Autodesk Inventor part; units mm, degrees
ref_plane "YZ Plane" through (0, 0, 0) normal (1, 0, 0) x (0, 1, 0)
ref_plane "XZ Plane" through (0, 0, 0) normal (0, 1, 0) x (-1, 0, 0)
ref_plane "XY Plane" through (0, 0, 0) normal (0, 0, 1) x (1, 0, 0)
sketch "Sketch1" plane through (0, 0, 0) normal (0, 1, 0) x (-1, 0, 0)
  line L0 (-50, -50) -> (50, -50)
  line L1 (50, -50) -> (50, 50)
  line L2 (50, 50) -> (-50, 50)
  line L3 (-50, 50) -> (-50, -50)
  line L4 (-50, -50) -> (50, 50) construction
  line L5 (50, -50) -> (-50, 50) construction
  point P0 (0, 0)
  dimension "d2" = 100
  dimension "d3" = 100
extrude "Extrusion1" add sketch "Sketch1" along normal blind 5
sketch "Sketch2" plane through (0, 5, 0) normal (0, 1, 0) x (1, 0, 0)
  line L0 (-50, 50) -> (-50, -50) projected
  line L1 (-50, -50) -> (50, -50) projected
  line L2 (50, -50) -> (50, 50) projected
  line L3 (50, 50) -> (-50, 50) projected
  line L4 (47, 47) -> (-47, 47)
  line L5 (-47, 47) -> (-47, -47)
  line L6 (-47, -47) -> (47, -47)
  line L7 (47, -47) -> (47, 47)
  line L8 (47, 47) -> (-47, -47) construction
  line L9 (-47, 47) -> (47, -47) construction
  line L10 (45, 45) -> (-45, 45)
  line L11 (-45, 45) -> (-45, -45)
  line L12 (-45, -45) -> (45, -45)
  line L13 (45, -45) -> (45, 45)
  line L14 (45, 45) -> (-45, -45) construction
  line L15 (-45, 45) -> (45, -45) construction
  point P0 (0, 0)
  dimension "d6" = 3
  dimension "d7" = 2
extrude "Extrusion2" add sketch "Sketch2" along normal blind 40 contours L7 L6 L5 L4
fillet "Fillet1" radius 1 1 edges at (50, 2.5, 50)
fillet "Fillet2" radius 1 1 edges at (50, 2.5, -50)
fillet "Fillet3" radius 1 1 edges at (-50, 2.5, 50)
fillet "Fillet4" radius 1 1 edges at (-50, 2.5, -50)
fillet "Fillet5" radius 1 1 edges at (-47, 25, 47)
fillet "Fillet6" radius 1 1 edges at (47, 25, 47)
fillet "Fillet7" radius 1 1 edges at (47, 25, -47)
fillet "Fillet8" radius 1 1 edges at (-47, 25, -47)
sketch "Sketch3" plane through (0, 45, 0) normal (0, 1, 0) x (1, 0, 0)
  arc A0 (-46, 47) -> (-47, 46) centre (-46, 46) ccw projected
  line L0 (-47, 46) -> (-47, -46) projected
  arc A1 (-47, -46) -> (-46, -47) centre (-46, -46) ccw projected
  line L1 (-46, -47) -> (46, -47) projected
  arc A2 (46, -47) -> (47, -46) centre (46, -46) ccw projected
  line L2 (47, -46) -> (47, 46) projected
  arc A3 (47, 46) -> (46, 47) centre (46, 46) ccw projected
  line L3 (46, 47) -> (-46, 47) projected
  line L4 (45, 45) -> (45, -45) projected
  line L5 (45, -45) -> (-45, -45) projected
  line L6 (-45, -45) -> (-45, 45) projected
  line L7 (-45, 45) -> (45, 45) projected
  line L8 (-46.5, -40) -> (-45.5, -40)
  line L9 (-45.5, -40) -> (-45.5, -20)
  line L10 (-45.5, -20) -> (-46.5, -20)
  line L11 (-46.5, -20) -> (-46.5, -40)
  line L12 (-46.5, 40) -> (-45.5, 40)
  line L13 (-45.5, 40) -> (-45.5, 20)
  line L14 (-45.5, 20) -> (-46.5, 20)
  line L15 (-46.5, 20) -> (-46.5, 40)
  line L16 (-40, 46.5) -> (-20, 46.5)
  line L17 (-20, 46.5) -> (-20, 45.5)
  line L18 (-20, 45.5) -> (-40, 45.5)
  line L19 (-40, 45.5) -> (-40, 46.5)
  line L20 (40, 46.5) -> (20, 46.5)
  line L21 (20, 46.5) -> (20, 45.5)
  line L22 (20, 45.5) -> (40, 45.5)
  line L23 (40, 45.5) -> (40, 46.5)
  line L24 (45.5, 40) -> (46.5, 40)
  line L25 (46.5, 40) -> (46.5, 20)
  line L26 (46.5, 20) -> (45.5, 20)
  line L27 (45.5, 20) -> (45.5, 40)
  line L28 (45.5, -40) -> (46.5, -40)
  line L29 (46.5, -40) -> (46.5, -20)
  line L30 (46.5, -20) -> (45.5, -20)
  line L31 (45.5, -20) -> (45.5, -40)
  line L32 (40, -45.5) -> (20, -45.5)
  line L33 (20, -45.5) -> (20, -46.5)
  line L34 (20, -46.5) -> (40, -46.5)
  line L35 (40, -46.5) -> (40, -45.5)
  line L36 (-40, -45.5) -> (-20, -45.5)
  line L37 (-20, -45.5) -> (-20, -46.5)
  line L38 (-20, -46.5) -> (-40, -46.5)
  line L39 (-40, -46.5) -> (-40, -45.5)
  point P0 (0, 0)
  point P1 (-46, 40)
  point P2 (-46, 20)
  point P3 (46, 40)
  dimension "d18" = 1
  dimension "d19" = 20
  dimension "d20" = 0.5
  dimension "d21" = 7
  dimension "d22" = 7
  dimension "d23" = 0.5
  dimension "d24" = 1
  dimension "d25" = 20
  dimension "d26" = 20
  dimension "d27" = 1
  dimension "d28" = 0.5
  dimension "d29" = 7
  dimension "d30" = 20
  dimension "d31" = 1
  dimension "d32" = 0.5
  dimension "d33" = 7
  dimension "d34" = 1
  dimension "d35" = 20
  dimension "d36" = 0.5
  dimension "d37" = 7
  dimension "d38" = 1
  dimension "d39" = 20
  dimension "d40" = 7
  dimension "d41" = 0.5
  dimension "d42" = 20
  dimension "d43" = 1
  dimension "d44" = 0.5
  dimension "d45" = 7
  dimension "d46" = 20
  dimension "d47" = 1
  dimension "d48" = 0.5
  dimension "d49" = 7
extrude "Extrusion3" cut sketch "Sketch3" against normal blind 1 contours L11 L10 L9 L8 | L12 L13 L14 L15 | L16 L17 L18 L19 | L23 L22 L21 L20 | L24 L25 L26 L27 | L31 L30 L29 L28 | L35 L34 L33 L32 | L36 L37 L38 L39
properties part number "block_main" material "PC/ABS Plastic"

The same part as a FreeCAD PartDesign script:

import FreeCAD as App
import Part
import Sketcher

V = App.Vector


def edges_at(feature, points):
    """Names of the edges that pass closest to the given points."""
    edges = feature.Shape.Edges
    near = lambda p: min(range(len(edges)), key=lambda i: edges[i].distToShape(Part.Vertex(*p))[0])
    return sorted({f"Edge{near(p) + 1}" for p in points})

doc = App.newDocument("Part")
params = doc.addObject("Spreadsheet::Sheet", "Params")
for row, (alias, value) in enumerate([
    ("sketch1_width", "100 mm"),
    ("pad1_length", "5 mm"),
    ("sketch2_width", "94 mm"),
    ("pad2_length", "40 mm"),
    ("fillet_radius", "1 mm"),
    ("fillet2_radius", "1 mm"),
    ("fillet3_radius", "1 mm"),
    ("fillet4_radius", "1 mm"),
    ("fillet5_radius", "1 mm"),
    ("fillet6_radius", "1 mm"),
    ("fillet7_radius", "1 mm"),
    ("fillet8_radius", "1 mm"),
    ("sketch3_width", "1 mm"),
    ("sketch3_width2", "20 mm"),
    ("pocket1_length", "1 mm"),
], start=1):
    params.set(f"A{row}", alias)
    params.set(f"B{row}", "=" + value)
    params.setAlias(f"B{row}", alias)

body = doc.addObject("PartDesign::Body", "Body")

# Sketch on XZ plane
sketch1 = body.newObject("Sketcher::SketchObject", "Sketch")
sketch1.AttachmentSupport = (doc.getObject("XZ_Plane"), [""])
sketch1.MapMode = "FlatFace"
sketch1.addGeometry([
    Part.LineSegment(V(50, 50, 0), V(50, -50, 0)),
    Part.LineSegment(V(50, -50, 0), V(-50, -50, 0)),
    Part.LineSegment(V(-50, -50, 0), V(-50, 50, 0)),
    Part.LineSegment(V(-50, 50, 0), V(50, 50, 0)),
], False)
sketch1.addConstraint([
    Sketcher.Constraint("Coincident", 0, 2, 1, 1),
    Sketcher.Constraint("Coincident", 1, 2, 2, 1),
    Sketcher.Constraint("Coincident", 2, 2, 3, 1),
    Sketcher.Constraint("Coincident", 3, 2, 0, 1),
    Sketcher.Constraint("Vertical", 0),
    Sketcher.Constraint("Horizontal", 1),
    Sketcher.Constraint("Vertical", 2),
    Sketcher.Constraint("Horizontal", 3),
    Sketcher.Constraint("Symmetric", 0, 2, 2, 2, -1, 1),
    Sketcher.Constraint("Equal", 3, 0),
    Sketcher.Constraint("DistanceX", 1, 2, 1, 1, 100.0),
])
sketch1.setExpression("Constraints[10]", "Params.sketch1_width")
pad1 = body.newObject("PartDesign::Pad", "Pad")
pad1.Profile = sketch1
pad1.setExpression("Length", "Params.pad1_length")
pad1.Reversed = True

# Sketch on XZ plane
sketch2 = body.newObject("Sketcher::SketchObject", "Sketch001")
sketch2.AttachmentSupport = (doc.getObject("XZ_Plane"), [""])
sketch2.MapMode = "FlatFace"
sketch2.AttachmentOffset = App.Placement(V(0, 0, -5), App.Rotation())
sketch2.addGeometry([
    Part.LineSegment(V(47, 47, 0), V(47, -47, 0)),  # 0
    Part.LineSegment(V(47, -47, 0), V(-47, -47, 0)),  # 1
    Part.LineSegment(V(-47, -47, 0), V(-47, 47, 0)),  # 2
    Part.LineSegment(V(-47, 47, 0), V(47, 47, 0)),  # 3
    Part.LineSegment(V(-45, -45, 0), V(45, -45, 0)),  # 4
    Part.LineSegment(V(45, -45, 0), V(45, 45, 0)),  # 5
    Part.LineSegment(V(45, 45, 0), V(-45, 45, 0)),  # 6
    Part.LineSegment(V(-45, 45, 0), V(-45, -45, 0)),  # 7
], False)
sketch2.addConstraint([
    Sketcher.Constraint("Coincident", 0, 2, 1, 1),
    Sketcher.Constraint("Coincident", 1, 2, 2, 1),
    Sketcher.Constraint("Coincident", 2, 2, 3, 1),
    Sketcher.Constraint("Coincident", 3, 2, 0, 1),
    Sketcher.Constraint("Coincident", 4, 2, 5, 1),
    Sketcher.Constraint("Coincident", 5, 2, 6, 1),
    Sketcher.Constraint("Coincident", 6, 2, 7, 1),
    Sketcher.Constraint("Coincident", 7, 2, 4, 1),
    Sketcher.Constraint("Vertical", 0),
    Sketcher.Constraint("Horizontal", 1),
    Sketcher.Constraint("Vertical", 2),
    Sketcher.Constraint("Horizontal", 3),
    Sketcher.Constraint("Horizontal", 4),
    Sketcher.Constraint("Vertical", 5),
    Sketcher.Constraint("Horizontal", 6),
    Sketcher.Constraint("Vertical", 7),
    Sketcher.Constraint("Symmetric", 0, 2, 2, 2, -1, 1),
    Sketcher.Constraint("Symmetric", 4, 2, 6, 2, -1, 1),
    Sketcher.Constraint("Equal", 3, 0),
    Sketcher.Constraint("Equal", 6, 5),
    Sketcher.Constraint("DistanceX", 4, 2, 0, 2, 2.0),
    Sketcher.Constraint("DistanceX", 1, 2, 1, 1, 94.0),
])
sketch2.setExpression("Constraints[21]", "Params.sketch2_width")
pad2 = body.newObject("PartDesign::Pad", "Pad001")
pad2.Profile = sketch2
pad2.setExpression("Length", "Params.pad2_length")
pad2.Reversed = True
doc.recompute()

fillet = body.newObject("PartDesign::Fillet", "Fillet")
fillet.Base = (pad2, edges_at(pad2, [(50, 2.5, 50)]))
fillet.setExpression("Radius", "Params.fillet_radius")
doc.recompute()

fillet2 = body.newObject("PartDesign::Fillet", "Fillet001")
fillet2.Base = (fillet, edges_at(fillet, [(50, 2.5, -50)]))
fillet2.setExpression("Radius", "Params.fillet2_radius")
doc.recompute()

fillet3 = body.newObject("PartDesign::Fillet", "Fillet002")
fillet3.Base = (fillet2, edges_at(fillet2, [(-50, 2.5, 50)]))
fillet3.setExpression("Radius", "Params.fillet3_radius")
doc.recompute()

fillet4 = body.newObject("PartDesign::Fillet", "Fillet003")
fillet4.Base = (fillet3, edges_at(fillet3, [(-50, 2.5, -50)]))
fillet4.setExpression("Radius", "Params.fillet4_radius")
doc.recompute()

fillet5 = body.newObject("PartDesign::Fillet", "Fillet004")
fillet5.Base = (fillet4, edges_at(fillet4, [(-47, 25, 47)]))
fillet5.setExpression("Radius", "Params.fillet5_radius")
doc.recompute()

fillet6 = body.newObject("PartDesign::Fillet", "Fillet005")
fillet6.Base = (fillet5, edges_at(fillet5, [(47, 25, 47)]))
fillet6.setExpression("Radius", "Params.fillet6_radius")
doc.recompute()

fillet7 = body.newObject("PartDesign::Fillet", "Fillet006")
fillet7.Base = (fillet6, edges_at(fillet6, [(47, 25, -47)]))
fillet7.setExpression("Radius", "Params.fillet7_radius")
doc.recompute()

fillet8 = body.newObject("PartDesign::Fillet", "Fillet007")
fillet8.Base = (fillet7, edges_at(fillet7, [(-47, 25, -47)]))
fillet8.setExpression("Radius", "Params.fillet8_radius")

# Sketch on XZ plane
sketch3 = body.newObject("Sketcher::SketchObject", "Sketch002")
sketch3.AttachmentSupport = (doc.getObject("XZ_Plane"), [""])
sketch3.MapMode = "FlatFace"
sketch3.AttachmentOffset = App.Placement(V(0, 0, -45), App.Rotation())
sketch3.addGeometry([
    Part.LineSegment(V(-46.5, 20, 0), V(-46.5, 40, 0)),  # 0
    Part.LineSegment(V(-46.5, 40, 0), V(-45.5, 40, 0)),  # 1
    Part.LineSegment(V(-45.5, 40, 0), V(-45.5, 20, 0)),  # 2
    Part.LineSegment(V(-45.5, 20, 0), V(-46.5, 20, 0)),  # 3
    Part.LineSegment(V(-45.5, -40, 0), V(-46.5, -40, 0)),  # 4
    Part.LineSegment(V(-46.5, -40, 0), V(-46.5, -20, 0)),  # 5
    Part.LineSegment(V(-46.5, -20, 0), V(-45.5, -20, 0)),  # 6
    Part.LineSegment(V(-45.5, -20, 0), V(-45.5, -40, 0)),  # 7
    Part.LineSegment(V(-20, -46.5, 0), V(-40, -46.5, 0)),  # 8
    Part.LineSegment(V(-40, -46.5, 0), V(-40, -45.5, 0)),  # 9
    Part.LineSegment(V(-40, -45.5, 0), V(-20, -45.5, 0)),  # 10
    Part.LineSegment(V(-20, -45.5, 0), V(-20, -46.5, 0)),  # 11
    Part.LineSegment(V(40, -45.5, 0), V(40, -46.5, 0)),  # 12
    Part.LineSegment(V(40, -46.5, 0), V(20, -46.5, 0)),  # 13
    Part.LineSegment(V(20, -46.5, 0), V(20, -45.5, 0)),  # 14
    Part.LineSegment(V(20, -45.5, 0), V(40, -45.5, 0)),  # 15
    Part.LineSegment(V(46.5, -40, 0), V(45.5, -40, 0)),  # 16
    Part.LineSegment(V(45.5, -40, 0), V(45.5, -20, 0)),  # 17
    Part.LineSegment(V(45.5, -20, 0), V(46.5, -20, 0)),  # 18
    Part.LineSegment(V(46.5, -20, 0), V(46.5, -40, 0)),  # 19
    Part.LineSegment(V(45.5, 20, 0), V(45.5, 40, 0)),  # 20
    Part.LineSegment(V(45.5, 40, 0), V(46.5, 40, 0)),  # 21
    Part.LineSegment(V(46.5, 40, 0), V(46.5, 20, 0)),  # 22
    Part.LineSegment(V(46.5, 20, 0), V(45.5, 20, 0)),  # 23
    Part.LineSegment(V(40, 46.5, 0), V(40, 45.5, 0)),  # 24
    Part.LineSegment(V(40, 45.5, 0), V(20, 45.5, 0)),  # 25
    Part.LineSegment(V(20, 45.5, 0), V(20, 46.5, 0)),  # 26
    Part.LineSegment(V(20, 46.5, 0), V(40, 46.5, 0)),  # 27
    Part.LineSegment(V(-20, 45.5, 0), V(-40, 45.5, 0)),  # 28
    Part.LineSegment(V(-40, 45.5, 0), V(-40, 46.5, 0)),  # 29
    Part.LineSegment(V(-40, 46.5, 0), V(-20, 46.5, 0)),  # 30
    Part.LineSegment(V(-20, 46.5, 0), V(-20, 45.5, 0)),  # 31
], False)
sketch3.addConstraint([
    Sketcher.Constraint("Coincident", 0, 2, 1, 1),
    Sketcher.Constraint("Coincident", 1, 2, 2, 1),
    Sketcher.Constraint("Coincident", 2, 2, 3, 1),
    Sketcher.Constraint("Coincident", 3, 2, 0, 1),
    Sketcher.Constraint("Coincident", 4, 2, 5, 1),
    Sketcher.Constraint("Coincident", 5, 2, 6, 1),
    Sketcher.Constraint("Coincident", 6, 2, 7, 1),
    Sketcher.Constraint("Coincident", 7, 2, 4, 1),
    Sketcher.Constraint("Coincident", 8, 2, 9, 1),
    Sketcher.Constraint("Coincident", 9, 2, 10, 1),
    Sketcher.Constraint("Coincident", 10, 2, 11, 1),
    Sketcher.Constraint("Coincident", 11, 2, 8, 1),
    Sketcher.Constraint("Coincident", 12, 2, 13, 1),
    Sketcher.Constraint("Coincident", 13, 2, 14, 1),
    Sketcher.Constraint("Coincident", 14, 2, 15, 1),
    Sketcher.Constraint("Coincident", 15, 2, 12, 1),
    Sketcher.Constraint("Coincident", 16, 2, 17, 1),
    Sketcher.Constraint("Coincident", 17, 2, 18, 1),
    Sketcher.Constraint("Coincident", 18, 2, 19, 1),
    Sketcher.Constraint("Coincident", 19, 2, 16, 1),
    Sketcher.Constraint("Coincident", 20, 2, 21, 1),
    Sketcher.Constraint("Coincident", 21, 2, 22, 1),
    Sketcher.Constraint("Coincident", 22, 2, 23, 1),
    Sketcher.Constraint("Coincident", 23, 2, 20, 1),
    Sketcher.Constraint("Coincident", 24, 2, 25, 1),
    Sketcher.Constraint("Coincident", 25, 2, 26, 1),
    Sketcher.Constraint("Coincident", 26, 2, 27, 1),
    Sketcher.Constraint("Coincident", 27, 2, 24, 1),
    Sketcher.Constraint("Coincident", 28, 2, 29, 1),
    Sketcher.Constraint("Coincident", 29, 2, 30, 1),
    Sketcher.Constraint("Coincident", 30, 2, 31, 1),
    Sketcher.Constraint("Coincident", 31, 2, 28, 1),
    Sketcher.Constraint("Vertical", 0),
    Sketcher.Constraint("Horizontal", 1),
    Sketcher.Constraint("Vertical", 2),
    Sketcher.Constraint("Horizontal", 3),
    Sketcher.Constraint("Horizontal", 4),
    Sketcher.Constraint("Vertical", 5),
    Sketcher.Constraint("Horizontal", 6),
    Sketcher.Constraint("Vertical", 7),
    Sketcher.Constraint("Horizontal", 8),
    Sketcher.Constraint("Vertical", 9),
    Sketcher.Constraint("Horizontal", 10),
    Sketcher.Constraint("Vertical", 11),
    Sketcher.Constraint("Vertical", 12),
    Sketcher.Constraint("Horizontal", 13),
    Sketcher.Constraint("Vertical", 14),
    Sketcher.Constraint("Horizontal", 15),
    Sketcher.Constraint("Horizontal", 16),
    Sketcher.Constraint("Vertical", 17),
    Sketcher.Constraint("Horizontal", 18),
    Sketcher.Constraint("Vertical", 19),
    Sketcher.Constraint("Vertical", 20),
    Sketcher.Constraint("Horizontal", 21),
    Sketcher.Constraint("Vertical", 22),
    Sketcher.Constraint("Horizontal", 23),
    Sketcher.Constraint("Vertical", 24),
    Sketcher.Constraint("Horizontal", 25),
    Sketcher.Constraint("Vertical", 26),
    Sketcher.Constraint("Horizontal", 27),
    Sketcher.Constraint("Horizontal", 28),
    Sketcher.Constraint("Vertical", 29),
    Sketcher.Constraint("Horizontal", 30),
    Sketcher.Constraint("Vertical", 31),
    Sketcher.Constraint("Symmetric", 1, 2, 16, 2, -1, 1),
    Sketcher.Constraint("Symmetric", 3, 2, 18, 2, -1, 1),
    Sketcher.Constraint("Symmetric", 7, 2, 20, 2, -1, 1),
    Sketcher.Constraint("Symmetric", 5, 2, 22, 2, -1, 1),
    Sketcher.Constraint("Symmetric", 9, 2, 24, 2, -1, 1),
    Sketcher.Constraint("Symmetric", 11, 2, 26, 2, -1, 1),
    Sketcher.Constraint("Symmetric", 15, 2, 28, 2, -1, 1),
    Sketcher.Constraint("Symmetric", 13, 2, 30, 2, -1, 1),
    Sketcher.Constraint("Symmetric", 8, 2, 12, 2, -2),
    Sketcher.Constraint("Symmetric", 10, 2, 14, 2, -2),
    Sketcher.Constraint("Symmetric", 7, 2, 16, 2, -2),
    Sketcher.Constraint("Symmetric", 5, 2, 18, 2, -2),
    Sketcher.Constraint("Equal", 30, 0),
    Sketcher.Constraint("Equal", 23, 9),
    Sketcher.Constraint("DistanceX", 1, 1, 1, 2, 1.0),
    Sketcher.Constraint("DistanceX", 8, 2, 8, 1, 20.0),
    Sketcher.Constraint("DistanceY", -1, 1, 2, 2, 20.0),
    Sketcher.Constraint("DistanceX", 10, 2, -1, 1, 20.0),
    Sketcher.Constraint("DistanceX", 0, 2, -1, 1, 46.5),
    Sketcher.Constraint("DistanceY", 8, 2, -1, 1, 46.5),
])
sketch3.setExpression("Constraints[78]", "Params.sketch3_width")
sketch3.setExpression("Constraints[79]", "Params.sketch3_width2")
pocket1 = body.newObject("PartDesign::Pocket", "Pocket")
pocket1.Profile = sketch3
pocket1.setExpression("Length", "Params.pocket1_length")
pocket1.Reversed = True

doc.recompute()
